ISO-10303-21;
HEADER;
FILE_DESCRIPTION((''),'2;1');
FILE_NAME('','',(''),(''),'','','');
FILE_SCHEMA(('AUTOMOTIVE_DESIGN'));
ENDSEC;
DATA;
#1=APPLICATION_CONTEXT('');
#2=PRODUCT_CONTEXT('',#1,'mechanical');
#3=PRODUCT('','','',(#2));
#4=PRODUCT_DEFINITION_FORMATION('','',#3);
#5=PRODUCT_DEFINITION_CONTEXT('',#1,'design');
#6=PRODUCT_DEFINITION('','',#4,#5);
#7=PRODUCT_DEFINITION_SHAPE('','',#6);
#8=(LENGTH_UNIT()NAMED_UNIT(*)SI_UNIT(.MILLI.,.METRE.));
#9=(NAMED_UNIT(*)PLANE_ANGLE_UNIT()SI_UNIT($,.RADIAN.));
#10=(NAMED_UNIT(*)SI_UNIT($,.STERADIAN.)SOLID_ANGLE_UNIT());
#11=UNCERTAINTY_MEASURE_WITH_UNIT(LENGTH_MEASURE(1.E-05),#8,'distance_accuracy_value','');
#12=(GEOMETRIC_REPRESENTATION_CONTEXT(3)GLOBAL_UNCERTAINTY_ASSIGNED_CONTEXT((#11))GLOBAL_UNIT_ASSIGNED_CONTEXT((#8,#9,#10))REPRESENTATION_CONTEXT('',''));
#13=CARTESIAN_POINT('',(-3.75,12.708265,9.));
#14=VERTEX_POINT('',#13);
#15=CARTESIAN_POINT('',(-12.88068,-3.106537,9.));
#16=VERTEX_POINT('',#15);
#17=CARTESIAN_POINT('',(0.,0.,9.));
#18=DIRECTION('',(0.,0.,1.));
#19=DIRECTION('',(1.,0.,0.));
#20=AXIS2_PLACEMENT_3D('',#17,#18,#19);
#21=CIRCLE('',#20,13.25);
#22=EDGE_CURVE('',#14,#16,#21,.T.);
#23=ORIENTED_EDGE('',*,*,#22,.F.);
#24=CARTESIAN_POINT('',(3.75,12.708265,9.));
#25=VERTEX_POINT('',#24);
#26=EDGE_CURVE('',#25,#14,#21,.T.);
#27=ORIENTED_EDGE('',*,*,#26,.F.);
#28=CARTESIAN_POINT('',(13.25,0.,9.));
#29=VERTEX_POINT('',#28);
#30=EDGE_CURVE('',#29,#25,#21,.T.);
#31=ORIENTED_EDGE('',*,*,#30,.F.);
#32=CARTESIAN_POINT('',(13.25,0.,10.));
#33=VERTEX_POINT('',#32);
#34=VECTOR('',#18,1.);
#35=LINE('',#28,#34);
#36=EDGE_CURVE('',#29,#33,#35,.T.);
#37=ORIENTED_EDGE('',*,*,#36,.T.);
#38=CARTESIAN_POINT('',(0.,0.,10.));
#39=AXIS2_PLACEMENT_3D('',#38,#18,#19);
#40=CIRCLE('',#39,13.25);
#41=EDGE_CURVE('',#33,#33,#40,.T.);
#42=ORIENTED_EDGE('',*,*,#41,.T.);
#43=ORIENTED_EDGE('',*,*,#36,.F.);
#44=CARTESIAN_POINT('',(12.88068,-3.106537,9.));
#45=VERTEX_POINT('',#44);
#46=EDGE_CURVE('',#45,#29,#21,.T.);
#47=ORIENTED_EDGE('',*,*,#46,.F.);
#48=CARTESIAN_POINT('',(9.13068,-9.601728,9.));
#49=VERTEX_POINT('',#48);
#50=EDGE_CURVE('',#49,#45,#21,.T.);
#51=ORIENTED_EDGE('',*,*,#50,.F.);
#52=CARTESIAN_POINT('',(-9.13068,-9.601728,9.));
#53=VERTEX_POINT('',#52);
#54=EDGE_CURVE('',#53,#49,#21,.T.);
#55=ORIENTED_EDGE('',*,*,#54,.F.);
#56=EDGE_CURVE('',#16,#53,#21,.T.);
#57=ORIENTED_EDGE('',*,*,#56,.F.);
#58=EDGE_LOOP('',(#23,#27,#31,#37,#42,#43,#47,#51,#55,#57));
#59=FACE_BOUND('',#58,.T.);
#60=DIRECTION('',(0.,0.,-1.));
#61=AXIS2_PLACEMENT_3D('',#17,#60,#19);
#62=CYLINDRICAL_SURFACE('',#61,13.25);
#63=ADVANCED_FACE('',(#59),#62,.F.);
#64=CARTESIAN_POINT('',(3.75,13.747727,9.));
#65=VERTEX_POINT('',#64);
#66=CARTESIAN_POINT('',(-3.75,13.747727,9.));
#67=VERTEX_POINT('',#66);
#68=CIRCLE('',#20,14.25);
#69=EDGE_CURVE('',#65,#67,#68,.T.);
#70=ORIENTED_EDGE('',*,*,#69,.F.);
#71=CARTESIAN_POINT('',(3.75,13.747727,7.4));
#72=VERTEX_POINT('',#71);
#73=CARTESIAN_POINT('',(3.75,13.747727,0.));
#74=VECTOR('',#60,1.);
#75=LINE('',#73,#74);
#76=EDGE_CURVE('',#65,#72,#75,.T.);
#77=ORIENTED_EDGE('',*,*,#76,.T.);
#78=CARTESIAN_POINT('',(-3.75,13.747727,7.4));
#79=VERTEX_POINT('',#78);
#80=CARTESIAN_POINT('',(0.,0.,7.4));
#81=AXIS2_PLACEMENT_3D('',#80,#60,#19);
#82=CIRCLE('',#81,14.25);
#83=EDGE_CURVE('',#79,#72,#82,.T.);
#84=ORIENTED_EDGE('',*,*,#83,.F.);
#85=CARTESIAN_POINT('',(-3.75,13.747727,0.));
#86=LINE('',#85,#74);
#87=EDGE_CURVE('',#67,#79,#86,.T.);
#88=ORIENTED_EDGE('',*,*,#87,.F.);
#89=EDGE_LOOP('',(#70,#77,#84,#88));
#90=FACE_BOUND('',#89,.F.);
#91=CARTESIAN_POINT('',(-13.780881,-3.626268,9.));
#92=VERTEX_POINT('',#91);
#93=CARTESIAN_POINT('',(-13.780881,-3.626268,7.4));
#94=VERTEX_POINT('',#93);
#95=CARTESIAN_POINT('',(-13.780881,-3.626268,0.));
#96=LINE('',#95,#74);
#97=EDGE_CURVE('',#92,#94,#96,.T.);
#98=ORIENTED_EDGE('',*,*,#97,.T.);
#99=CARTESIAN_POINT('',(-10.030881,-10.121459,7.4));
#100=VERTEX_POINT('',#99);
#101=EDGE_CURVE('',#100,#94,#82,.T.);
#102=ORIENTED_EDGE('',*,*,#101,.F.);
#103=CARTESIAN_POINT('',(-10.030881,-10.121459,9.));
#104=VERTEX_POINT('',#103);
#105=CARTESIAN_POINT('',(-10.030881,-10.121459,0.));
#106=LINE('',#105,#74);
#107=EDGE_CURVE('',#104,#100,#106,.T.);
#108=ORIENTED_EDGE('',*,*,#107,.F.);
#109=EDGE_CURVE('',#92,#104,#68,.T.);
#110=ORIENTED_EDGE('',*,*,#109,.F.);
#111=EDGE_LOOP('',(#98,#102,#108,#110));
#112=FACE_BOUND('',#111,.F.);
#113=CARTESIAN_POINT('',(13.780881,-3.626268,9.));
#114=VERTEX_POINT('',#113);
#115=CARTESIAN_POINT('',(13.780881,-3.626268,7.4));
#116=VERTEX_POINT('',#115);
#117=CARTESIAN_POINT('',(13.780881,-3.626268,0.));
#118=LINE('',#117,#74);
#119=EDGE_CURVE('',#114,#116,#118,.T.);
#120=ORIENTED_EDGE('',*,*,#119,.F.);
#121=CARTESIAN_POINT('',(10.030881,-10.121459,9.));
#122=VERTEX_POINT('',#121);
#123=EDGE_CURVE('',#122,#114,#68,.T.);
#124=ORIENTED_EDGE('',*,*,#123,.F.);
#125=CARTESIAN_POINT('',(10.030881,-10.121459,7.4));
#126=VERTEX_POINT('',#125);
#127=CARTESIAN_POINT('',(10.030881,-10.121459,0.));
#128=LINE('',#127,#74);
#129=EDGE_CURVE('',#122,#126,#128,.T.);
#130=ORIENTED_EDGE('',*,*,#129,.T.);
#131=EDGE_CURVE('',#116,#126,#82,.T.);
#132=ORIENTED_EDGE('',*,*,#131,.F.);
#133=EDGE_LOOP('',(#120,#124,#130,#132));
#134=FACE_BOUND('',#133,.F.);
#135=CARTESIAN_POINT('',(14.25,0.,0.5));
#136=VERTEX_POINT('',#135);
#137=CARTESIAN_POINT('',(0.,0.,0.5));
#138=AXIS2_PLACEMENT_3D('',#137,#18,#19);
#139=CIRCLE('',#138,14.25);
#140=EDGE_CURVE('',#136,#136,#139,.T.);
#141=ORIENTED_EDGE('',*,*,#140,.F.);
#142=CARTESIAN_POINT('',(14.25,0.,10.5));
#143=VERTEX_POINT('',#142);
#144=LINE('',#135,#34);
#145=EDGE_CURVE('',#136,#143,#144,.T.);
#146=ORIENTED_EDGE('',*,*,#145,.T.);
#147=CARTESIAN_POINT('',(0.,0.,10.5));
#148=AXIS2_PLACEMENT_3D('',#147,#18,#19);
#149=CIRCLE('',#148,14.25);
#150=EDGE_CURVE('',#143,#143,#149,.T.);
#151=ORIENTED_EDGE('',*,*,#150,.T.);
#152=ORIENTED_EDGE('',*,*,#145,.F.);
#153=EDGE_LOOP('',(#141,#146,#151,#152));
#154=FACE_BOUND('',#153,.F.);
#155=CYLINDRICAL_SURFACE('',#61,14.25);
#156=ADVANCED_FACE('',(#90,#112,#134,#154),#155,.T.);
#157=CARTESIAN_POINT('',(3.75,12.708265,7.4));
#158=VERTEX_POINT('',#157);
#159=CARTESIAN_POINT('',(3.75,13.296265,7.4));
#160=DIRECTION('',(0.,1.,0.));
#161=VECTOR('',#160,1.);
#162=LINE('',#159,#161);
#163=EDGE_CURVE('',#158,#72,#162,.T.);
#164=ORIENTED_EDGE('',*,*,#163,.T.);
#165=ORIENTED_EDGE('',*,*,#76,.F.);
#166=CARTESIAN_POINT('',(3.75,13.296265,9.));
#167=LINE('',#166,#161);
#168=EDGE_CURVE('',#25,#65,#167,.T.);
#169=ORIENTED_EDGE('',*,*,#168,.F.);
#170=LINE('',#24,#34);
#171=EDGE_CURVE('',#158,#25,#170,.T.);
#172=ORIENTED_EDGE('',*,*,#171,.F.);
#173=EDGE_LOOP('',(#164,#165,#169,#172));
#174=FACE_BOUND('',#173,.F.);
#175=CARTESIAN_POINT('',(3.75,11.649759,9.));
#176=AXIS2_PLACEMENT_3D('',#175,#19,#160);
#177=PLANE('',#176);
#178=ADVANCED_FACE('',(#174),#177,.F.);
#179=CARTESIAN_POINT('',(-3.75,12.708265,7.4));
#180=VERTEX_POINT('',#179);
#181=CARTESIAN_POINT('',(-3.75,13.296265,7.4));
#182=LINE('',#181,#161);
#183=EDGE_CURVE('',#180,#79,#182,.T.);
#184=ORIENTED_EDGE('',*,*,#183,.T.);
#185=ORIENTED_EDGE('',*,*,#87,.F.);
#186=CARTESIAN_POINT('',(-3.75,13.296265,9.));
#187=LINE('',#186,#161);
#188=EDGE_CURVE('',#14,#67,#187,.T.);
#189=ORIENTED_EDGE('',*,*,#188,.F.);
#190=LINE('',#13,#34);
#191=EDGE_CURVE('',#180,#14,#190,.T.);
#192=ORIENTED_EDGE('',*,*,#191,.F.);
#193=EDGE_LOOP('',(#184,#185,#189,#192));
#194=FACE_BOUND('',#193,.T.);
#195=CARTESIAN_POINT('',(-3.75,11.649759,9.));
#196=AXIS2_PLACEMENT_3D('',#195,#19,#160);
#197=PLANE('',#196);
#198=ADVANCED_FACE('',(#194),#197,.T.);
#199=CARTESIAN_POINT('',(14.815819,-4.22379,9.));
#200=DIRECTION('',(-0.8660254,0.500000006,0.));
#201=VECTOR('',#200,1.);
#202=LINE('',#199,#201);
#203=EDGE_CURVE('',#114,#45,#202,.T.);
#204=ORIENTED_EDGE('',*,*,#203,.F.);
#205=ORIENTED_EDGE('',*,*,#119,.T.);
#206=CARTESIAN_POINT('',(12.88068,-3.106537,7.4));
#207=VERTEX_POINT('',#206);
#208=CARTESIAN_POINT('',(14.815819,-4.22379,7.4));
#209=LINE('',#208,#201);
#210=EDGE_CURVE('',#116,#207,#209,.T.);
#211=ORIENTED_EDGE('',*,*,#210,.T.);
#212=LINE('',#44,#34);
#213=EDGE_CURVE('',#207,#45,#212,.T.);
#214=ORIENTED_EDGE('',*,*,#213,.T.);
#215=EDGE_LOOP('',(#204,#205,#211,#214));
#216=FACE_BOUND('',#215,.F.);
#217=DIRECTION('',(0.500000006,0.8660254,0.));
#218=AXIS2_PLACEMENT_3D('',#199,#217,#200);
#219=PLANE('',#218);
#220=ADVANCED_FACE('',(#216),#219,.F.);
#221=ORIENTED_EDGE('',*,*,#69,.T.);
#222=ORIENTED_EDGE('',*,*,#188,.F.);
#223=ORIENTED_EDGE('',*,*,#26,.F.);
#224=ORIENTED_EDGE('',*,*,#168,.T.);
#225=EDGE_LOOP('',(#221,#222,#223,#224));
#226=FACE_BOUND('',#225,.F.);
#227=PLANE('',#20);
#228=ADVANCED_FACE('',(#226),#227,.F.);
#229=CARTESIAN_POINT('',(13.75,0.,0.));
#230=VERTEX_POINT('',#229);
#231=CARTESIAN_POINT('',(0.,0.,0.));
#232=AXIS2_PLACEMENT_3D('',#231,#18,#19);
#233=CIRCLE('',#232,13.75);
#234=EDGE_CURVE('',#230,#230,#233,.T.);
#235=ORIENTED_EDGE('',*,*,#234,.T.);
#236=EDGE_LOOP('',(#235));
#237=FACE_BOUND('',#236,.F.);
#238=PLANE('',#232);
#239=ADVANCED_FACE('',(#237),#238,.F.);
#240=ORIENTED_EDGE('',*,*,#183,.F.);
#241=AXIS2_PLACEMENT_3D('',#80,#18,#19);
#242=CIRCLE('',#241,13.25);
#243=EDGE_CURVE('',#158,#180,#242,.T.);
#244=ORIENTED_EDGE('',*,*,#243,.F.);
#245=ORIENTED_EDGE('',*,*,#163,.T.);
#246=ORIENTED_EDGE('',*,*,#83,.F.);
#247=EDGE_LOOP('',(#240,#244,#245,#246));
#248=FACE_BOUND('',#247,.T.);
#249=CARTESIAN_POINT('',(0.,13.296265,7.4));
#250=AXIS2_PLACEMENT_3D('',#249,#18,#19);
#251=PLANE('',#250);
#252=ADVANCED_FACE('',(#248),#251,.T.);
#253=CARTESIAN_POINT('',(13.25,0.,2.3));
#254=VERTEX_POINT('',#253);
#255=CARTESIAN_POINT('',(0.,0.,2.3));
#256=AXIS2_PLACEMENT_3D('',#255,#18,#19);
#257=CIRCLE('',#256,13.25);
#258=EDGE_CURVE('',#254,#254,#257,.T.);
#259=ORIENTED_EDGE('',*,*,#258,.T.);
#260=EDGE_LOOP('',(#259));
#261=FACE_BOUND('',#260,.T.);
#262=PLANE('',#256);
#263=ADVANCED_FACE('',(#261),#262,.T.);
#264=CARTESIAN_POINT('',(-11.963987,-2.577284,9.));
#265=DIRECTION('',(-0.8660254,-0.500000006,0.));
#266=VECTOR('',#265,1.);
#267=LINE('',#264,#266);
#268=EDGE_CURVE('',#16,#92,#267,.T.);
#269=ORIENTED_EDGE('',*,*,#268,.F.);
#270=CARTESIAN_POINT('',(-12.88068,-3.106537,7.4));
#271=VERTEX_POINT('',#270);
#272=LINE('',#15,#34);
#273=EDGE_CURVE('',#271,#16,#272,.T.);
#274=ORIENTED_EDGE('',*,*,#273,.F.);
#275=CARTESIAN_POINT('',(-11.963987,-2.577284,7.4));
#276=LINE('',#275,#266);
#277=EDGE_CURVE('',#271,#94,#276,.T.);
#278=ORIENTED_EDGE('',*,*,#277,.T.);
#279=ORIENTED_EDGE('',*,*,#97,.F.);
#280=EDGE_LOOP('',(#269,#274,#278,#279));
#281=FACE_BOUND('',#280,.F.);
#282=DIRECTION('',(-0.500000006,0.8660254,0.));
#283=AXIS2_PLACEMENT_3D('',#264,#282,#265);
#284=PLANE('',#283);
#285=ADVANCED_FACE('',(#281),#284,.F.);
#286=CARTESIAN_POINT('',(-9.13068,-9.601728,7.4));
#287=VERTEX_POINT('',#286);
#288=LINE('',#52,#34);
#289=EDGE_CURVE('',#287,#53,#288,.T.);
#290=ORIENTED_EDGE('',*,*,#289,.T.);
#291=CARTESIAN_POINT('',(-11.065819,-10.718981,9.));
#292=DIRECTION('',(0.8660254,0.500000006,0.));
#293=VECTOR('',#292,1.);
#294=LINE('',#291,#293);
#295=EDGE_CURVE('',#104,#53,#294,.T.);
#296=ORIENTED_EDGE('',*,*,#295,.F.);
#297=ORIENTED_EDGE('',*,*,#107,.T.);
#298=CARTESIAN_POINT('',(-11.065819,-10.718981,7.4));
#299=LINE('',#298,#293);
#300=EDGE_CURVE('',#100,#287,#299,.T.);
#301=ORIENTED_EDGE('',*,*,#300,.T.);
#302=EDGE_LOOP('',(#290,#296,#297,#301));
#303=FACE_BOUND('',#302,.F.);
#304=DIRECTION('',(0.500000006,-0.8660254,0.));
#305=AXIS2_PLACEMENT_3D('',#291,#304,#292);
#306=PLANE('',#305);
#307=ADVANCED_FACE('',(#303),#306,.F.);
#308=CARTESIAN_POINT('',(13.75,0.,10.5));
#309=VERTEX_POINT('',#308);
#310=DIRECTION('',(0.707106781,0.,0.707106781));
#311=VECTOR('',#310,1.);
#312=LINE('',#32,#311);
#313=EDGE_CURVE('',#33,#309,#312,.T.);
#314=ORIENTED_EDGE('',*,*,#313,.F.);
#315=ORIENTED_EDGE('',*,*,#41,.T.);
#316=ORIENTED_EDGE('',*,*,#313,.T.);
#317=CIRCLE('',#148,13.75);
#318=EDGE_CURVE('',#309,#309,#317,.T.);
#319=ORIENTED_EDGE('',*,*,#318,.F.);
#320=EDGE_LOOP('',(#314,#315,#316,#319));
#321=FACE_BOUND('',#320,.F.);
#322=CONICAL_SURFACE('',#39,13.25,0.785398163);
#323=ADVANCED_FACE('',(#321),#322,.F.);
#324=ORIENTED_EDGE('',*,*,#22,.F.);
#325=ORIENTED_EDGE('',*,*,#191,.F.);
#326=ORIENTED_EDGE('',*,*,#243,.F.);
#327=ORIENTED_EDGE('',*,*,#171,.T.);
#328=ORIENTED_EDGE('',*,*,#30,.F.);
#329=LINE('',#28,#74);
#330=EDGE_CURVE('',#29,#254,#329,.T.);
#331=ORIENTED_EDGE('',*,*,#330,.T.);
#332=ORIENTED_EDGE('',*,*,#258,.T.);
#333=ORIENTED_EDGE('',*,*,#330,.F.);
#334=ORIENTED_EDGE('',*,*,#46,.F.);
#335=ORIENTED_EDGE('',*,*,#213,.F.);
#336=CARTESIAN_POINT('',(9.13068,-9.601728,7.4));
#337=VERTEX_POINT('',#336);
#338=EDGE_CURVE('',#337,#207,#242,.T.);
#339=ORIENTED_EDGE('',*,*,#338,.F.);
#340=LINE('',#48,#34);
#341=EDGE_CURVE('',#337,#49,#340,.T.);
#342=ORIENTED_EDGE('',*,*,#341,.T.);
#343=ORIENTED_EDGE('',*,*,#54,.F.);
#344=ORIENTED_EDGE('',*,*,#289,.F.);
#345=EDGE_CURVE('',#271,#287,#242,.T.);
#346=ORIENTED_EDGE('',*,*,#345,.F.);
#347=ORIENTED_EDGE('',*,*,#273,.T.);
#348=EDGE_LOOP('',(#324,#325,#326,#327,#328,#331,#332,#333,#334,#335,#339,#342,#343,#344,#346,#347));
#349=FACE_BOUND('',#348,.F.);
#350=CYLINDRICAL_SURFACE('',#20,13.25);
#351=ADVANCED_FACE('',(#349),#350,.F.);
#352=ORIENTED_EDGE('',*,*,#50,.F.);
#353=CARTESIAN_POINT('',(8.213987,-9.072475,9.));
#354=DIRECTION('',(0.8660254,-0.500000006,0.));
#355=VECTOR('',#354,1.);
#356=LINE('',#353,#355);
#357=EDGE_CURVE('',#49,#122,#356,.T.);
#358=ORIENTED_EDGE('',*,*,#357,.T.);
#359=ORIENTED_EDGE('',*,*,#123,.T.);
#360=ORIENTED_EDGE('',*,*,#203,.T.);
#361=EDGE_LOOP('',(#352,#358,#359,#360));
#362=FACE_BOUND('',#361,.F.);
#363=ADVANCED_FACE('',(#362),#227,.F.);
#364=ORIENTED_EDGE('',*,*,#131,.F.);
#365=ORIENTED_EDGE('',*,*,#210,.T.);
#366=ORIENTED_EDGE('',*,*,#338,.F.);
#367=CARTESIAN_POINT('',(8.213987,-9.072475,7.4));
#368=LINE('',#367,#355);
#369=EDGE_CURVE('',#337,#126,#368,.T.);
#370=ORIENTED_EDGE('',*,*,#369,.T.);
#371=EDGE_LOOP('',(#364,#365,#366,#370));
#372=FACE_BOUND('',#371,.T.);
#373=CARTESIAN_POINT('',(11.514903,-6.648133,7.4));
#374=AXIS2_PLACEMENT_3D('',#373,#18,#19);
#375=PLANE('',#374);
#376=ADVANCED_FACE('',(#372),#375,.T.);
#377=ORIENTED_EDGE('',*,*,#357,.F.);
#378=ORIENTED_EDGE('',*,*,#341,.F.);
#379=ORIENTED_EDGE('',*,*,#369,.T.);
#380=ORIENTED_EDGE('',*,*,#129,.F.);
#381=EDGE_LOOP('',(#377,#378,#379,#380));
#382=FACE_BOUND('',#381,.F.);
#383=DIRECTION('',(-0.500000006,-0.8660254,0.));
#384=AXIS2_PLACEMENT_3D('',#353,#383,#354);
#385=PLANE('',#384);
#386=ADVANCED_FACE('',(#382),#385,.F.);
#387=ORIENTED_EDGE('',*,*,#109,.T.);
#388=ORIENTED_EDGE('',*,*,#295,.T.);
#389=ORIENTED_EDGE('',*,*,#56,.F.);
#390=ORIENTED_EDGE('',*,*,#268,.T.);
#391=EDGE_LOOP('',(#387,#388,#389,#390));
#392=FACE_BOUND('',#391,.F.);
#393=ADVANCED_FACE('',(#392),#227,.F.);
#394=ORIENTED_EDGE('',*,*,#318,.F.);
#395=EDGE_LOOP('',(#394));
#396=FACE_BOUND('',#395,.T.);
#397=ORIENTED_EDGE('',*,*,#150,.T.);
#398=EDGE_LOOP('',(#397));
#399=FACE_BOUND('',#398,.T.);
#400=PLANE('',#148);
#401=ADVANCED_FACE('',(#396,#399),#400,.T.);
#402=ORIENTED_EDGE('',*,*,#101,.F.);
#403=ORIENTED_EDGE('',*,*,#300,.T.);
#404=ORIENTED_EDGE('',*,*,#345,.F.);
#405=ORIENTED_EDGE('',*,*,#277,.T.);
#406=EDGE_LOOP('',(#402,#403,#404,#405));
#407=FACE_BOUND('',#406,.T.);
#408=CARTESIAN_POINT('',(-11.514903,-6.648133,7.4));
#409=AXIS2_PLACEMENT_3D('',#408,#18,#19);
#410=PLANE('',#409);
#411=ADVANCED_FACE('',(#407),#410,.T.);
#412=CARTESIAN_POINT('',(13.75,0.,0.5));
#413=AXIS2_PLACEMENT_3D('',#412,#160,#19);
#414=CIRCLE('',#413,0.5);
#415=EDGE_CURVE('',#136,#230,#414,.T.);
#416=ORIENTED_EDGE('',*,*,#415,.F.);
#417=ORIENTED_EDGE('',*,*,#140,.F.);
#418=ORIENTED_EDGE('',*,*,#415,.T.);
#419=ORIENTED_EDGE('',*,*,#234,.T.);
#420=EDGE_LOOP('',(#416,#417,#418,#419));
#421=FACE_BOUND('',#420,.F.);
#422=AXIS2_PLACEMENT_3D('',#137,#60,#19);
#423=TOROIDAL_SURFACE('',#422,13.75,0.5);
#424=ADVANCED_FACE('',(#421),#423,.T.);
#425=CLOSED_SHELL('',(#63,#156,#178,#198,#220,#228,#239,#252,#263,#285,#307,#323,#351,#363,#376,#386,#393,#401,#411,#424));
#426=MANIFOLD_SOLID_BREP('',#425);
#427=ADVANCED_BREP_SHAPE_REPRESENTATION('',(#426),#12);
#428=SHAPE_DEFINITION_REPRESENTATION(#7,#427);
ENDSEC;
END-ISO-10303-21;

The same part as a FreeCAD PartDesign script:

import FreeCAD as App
import Part
import Sketcher

V = App.Vector
Q = App.Units.Quantity


def edges_at(feature, points):
    """Names of the edges that pass closest to the given points."""
    edges = feature.Shape.Edges
    near = lambda p: min(range(len(edges)), key=lambda i: edges[i].distToShape(Part.Vertex(*p))[0])
    return sorted({f"Edge{near(p) + 1}" for p in points})

doc = App.newDocument("Part")
body = doc.addObject("PartDesign::Body", "Body")

# Sketch on XY plane
sketch1 = doc.addObject("Sketcher::SketchObject", "Sketch")
body.addObject(sketch1)
sketch1.AttachmentSupport = (doc.XY_Plane, [""])
sketch1.MapMode = "FlatFace"
sketch1.addGeometry(Part.Circle(V(0, 0, 0), V(0, 0, 1), 14.25), False)
sketch1.addConstraint([
    Sketcher.Constraint("Coincident", 0, 3, -1, 1),
    Sketcher.Constraint("Diameter", 0, 28.5),
])
pad1 = doc.addObject("PartDesign::Pad", "Pad")
body.addObject(pad1)
pad1.Profile = sketch1
pad1.Length = 9

# Sketch on XY plane
sketch2 = doc.addObject("Sketcher::SketchObject", "Sketch001")
body.addObject(sketch2)
sketch2.AttachmentSupport = (doc.XY_Plane, [""])
sketch2.MapMode = "FlatFace"
sketch2.AttachmentOffset = App.Placement(V(0, 0, 9), App.Rotation())
sketch2.addGeometry(Part.Circle(V(0, 0, 0), V(0, 0, 1), 13.25), False)
sketch2.addConstraint([
    Sketcher.Constraint("Coincident", 0, 3, -1, 1),
    Sketcher.Constraint("Diameter", 0, 26.5),
])
pocket1 = doc.addObject("PartDesign::Pocket", "Pocket")
body.addObject(pocket1)
pocket1.Profile = sketch2
pocket1.Length = 6.7
doc.recompute()

fillet = doc.addObject("PartDesign::Fillet", "Fillet")
body.addObject(fillet)
fillet.Base = (pocket1, edges_at(pocket1, [(-14.25, 0, 0)]))
fillet.Radius = 0.5

# Sketch on XY plane
sketch3 = doc.addObject("Sketcher::SketchObject", "Sketch002")
body.addObject(sketch3)
sketch3.AttachmentSupport = (doc.XY_Plane, [""])
sketch3.MapMode = "FlatFace"
sketch3.AttachmentOffset = App.Placement(V(0, 0, 9), App.Rotation())
sketch3.addGeometry([
    Part.LineSegment(V(-3.75, 14.942771, 0), V(-3.75, 11.649759, 0)),  # 0
    Part.LineSegment(V(-3.75, 11.649759, 0), V(3.75, 11.649759, 0)),  # 1
    Part.LineSegment(V(3.75, 11.649759, 0), V(3.75, 14.942771, 0)),  # 2
    Part.LineSegment(V(3.75, 14.942771, 0), V(-3.75, 14.942771, 0)),  # 3
    Part.LineSegment(V(-14.815819, -4.22379, 0), V(-11.065819, -10.718981, 0)),  # 4
    Part.LineSegment(V(-11.065819, -10.718981, 0), V(-8.213987, -9.072475, 0)),  # 5
    Part.LineSegment(V(-8.213987, -9.072475, 0), V(-11.963987, -2.577284, 0)),  # 6
    Part.LineSegment(V(-11.963987, -2.577284, 0), V(-14.815819, -4.22379, 0)),  # 7
    Part.LineSegment(V(11.065819, -10.718981, 0), V(14.815819, -4.22379, 0)),  # 8
    Part.LineSegment(V(14.815819, -4.22379, 0), V(11.963987, -2.577284, 0)),  # 9
    Part.LineSegment(V(11.963987, -2.577284, 0), V(8.213987, -9.072475, 0)),  # 10
    Part.LineSegment(V(8.213987, -9.072475, 0), V(11.065819, -10.718981, 0)),  # 11
], False)
sketch3.addConstraint([
    Sketcher.Constraint("Coincident", 0, 2, 1, 1),
    Sketcher.Constraint("Coincident", 1, 2, 2, 1),
    Sketcher.Constraint("Coincident", 2, 2, 3, 1),
    Sketcher.Constraint("Coincident", 3, 2, 0, 1),
    Sketcher.Constraint("Coincident", 4, 2, 5, 1),
    Sketcher.Constraint("Coincident", 5, 2, 6, 1),
    Sketcher.Constraint("Coincident", 6, 2, 7, 1),
    Sketcher.Constraint("Coincident", 7, 2, 4, 1),
    Sketcher.Constraint("Coincident", 8, 2, 9, 1),
    Sketcher.Constraint("Coincident", 9, 2, 10, 1),
    Sketcher.Constraint("Coincident", 10, 2, 11, 1),
    Sketcher.Constraint("Coincident", 11, 2, 8, 1),
    Sketcher.Constraint("Vertical", 0),
    Sketcher.Constraint("Horizontal", 1),
    Sketcher.Constraint("Vertical", 2),
    Sketcher.Constraint("Horizontal", 3),
    Sketcher.Constraint("Symmetric", 7, 2, 8, 2, -2),
    Sketcher.Constraint("Symmetric", 6, 2, 9, 2, -2),
    Sketcher.Constraint("Symmetric", 5, 2, 10, 2, -2),
    Sketcher.Constraint("Symmetric", 4, 2, 11, 2, -2),
    Sketcher.Constraint("Perpendicular", 4, 5),
    Sketcher.Constraint("Perpendicular", 5, 6),
    Sketcher.Constraint("Perpendicular", 6, 7),
    Sketcher.Constraint("Angle", 4, Q("-60.000002 deg")),
    Sketcher.Constraint("DistanceX", 1, 1, 1, 2, 7.5),
    Sketcher.Constraint("Distance", 4, 7.5),
    Sketcher.Constraint("DistanceX", 0, 2, -1, 1, 3.75),
    Sketcher.Constraint("Distance", 5, 3.293012),
    Sketcher.Constraint("DistanceY", 0, 2, 0, 1, 3.293012),
    Sketcher.Constraint("DistanceY", -1, 1, 0, 2, 11.649759),
    Sketcher.Constraint("DistanceX", 4, 2, -1, 1, 11.065819),
    Sketcher.Constraint("DistanceY", 4, 2, -1, 1, 10.718981),
])
pocket2 = doc.addObject("PartDesign::Pocket", "Pocket001")
body.addObject(pocket2)
pocket2.Profile = sketch3
pocket2.Length = 1.6

# Sketch on XY plane
sketch4 = doc.addObject("Sketcher::SketchObject", "Sketch003")
body.addObject(sketch4)
sketch4.AttachmentSupport = (doc.XY_Plane, [""])
sketch4.MapMode = "FlatFace"
sketch4.AttachmentOffset = App.Placement(V(0, 0, 9), App.Rotation())
sketch4.addGeometry([
    Part.Circle(V(0, 0, 0), V(0, 0, 1), 14.25),
    Part.Circle(V(0, 0, 0), V(0, 0, 1), 13.25),
], False)
sketch4.addConstraint([
    Sketcher.Constraint("Coincident", 0, 3, -1, 1),
    Sketcher.Constraint("Coincident", 1, 3, -1, 1),
    Sketcher.Constraint("Diameter", 0, 28.5),
    Sketcher.Constraint("Diameter", 1, 26.5),
])
pad2 = doc.addObject("PartDesign::Pad", "Pad001")
body.addObject(pad2)
pad2.Profile = sketch4
pad2.Length = 1.5
doc.recompute()

chamfer = doc.addObject("PartDesign::Chamfer", "Chamfer")
body.addObject(chamfer)
chamfer.Base = (pad2, edges_at(pad2, [(-13.25, 0, 10.5)]))
chamfer.Size = 0.5

doc.recompute()
